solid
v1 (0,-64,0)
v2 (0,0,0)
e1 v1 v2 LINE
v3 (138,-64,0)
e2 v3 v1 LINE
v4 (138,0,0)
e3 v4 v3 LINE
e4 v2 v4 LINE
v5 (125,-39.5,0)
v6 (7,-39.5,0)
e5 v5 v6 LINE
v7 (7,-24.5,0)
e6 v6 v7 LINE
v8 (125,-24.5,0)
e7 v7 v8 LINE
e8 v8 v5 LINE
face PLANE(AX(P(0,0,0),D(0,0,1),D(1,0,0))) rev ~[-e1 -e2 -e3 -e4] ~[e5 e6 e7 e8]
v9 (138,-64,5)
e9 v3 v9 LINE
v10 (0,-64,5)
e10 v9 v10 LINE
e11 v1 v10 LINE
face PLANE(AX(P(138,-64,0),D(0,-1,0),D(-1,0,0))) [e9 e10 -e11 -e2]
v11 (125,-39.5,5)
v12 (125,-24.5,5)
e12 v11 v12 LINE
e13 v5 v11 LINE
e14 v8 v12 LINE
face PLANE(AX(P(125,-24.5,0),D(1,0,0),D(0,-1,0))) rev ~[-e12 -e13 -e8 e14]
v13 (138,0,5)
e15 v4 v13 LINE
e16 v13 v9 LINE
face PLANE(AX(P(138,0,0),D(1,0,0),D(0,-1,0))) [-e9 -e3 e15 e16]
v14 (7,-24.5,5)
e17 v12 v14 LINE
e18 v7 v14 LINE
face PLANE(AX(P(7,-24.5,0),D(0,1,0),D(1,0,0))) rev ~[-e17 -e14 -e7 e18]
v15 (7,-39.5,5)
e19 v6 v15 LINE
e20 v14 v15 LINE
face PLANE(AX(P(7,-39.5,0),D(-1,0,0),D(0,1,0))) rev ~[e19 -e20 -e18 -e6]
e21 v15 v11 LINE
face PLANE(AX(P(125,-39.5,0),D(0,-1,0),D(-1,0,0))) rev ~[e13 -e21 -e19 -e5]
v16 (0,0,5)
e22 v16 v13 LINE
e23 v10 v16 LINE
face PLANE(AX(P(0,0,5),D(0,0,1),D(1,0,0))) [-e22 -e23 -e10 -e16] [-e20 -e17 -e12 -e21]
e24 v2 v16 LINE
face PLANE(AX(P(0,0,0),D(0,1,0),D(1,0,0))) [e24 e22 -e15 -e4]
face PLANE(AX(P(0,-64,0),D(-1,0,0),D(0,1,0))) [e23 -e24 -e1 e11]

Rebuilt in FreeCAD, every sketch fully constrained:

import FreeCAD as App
import Part
import Sketcher
from FreeCAD import Vector

doc = App.newDocument("Part")
params = doc.addObject("Spreadsheet::Sheet", "Params")
for row, (alias, value) in enumerate([
    ("sketch1_width", "138 mm"),
    ("sketch1_height", "64 mm"),
    ("pad1_length", "5 mm"),
    ("sketch2_width", "118 mm"),
    ("sketch2_height", "15 mm"),
    ("pocket1_length", "100 mm"),
], start=1):
    params.set(f"A{row}", alias)
    params.set(f"B{row}", "=" + value)
    params.setAlias(f"B{row}", alias)

body = doc.addObject("PartDesign::Body", "Body")

# Sketch on XY plane
sketch1 = body.newObject("Sketcher::SketchObject", "Sketch")
sketch1.AttachmentSupport = (doc.getObject("XY_Plane"), [""])
sketch1.MapMode = "FlatFace"
sketch1.addGeometry([
    Part.LineSegment(Vector(138, 0, 0), Vector(0, 0, 0)),
    Part.LineSegment(Vector(0, 0, 0), Vector(0, -64, 0)),
    Part.LineSegment(Vector(0, -64, 0), Vector(138, -64, 0)),
    Part.LineSegment(Vector(138, -64, 0), Vector(138, 0, 0)),
], False)
sketch1.addConstraint([
    Sketcher.Constraint("Coincident", 0, 2, 1, 1),
    Sketcher.Constraint("Coincident", 1, 2, 2, 1),
    Sketcher.Constraint("Coincident", 2, 2, 3, 1),
    Sketcher.Constraint("Coincident", 3, 2, 0, 1),
    Sketcher.Constraint("Horizontal", 0),
    Sketcher.Constraint("Vertical", 1),
    Sketcher.Constraint("Horizontal", 2),
    Sketcher.Constraint("Vertical", 3),
    Sketcher.Constraint("Coincident", 0, 2, -1, 1),
    Sketcher.Constraint("DistanceX", 0, 2, 0, 1, 138.0),
    Sketcher.Constraint("DistanceY", 1, 2, 1, 1, 64.0),
])
sketch1.setExpression("Constraints[9]", "Params.sketch1_width")
sketch1.setExpression("Constraints[10]", "Params.sketch1_height")
pad1 = body.newObject("PartDesign::Pad", "Pad")
pad1.Profile = sketch1
pad1.setExpression("Length", "Params.pad1_length")

# Sketch on XY plane
sketch2 = body.newObject("Sketcher::SketchObject", "Sketch001")
sketch2.AttachmentSupport = (doc.getObject("XY_Plane"), [""])
sketch2.MapMode = "FlatFace"
sketch2.addGeometry([
    Part.LineSegment(Vector(125, -24, 0), Vector(7, -24, 0)),
    Part.LineSegment(Vector(7, -24, 0), Vector(7, -40, 0)),
    Part.LineSegment(Vector(7, -40, 0), Vector(125, -40, 0)),
    Part.LineSegment(Vector(125, -40, 0), Vector(125, -24, 0)),
], False)
sketch2.addConstraint([
    Sketcher.Constraint("Coincident", 0, 2, 1, 1),
    Sketcher.Constraint("Coincident", 1, 2, 2, 1),
    Sketcher.Constraint("Coincident", 2, 2, 3, 1),
    Sketcher.Constraint("Coincident", 3, 2, 0, 1),
    Sketcher.Constraint("Horizontal", 0),
    Sketcher.Constraint("Vertical", 1),
    Sketcher.Constraint("Horizontal", 2),
    Sketcher.Constraint("Vertical", 3),
    Sketcher.Constraint("DistanceX", 0, 2, 0, 1, 118.0),
    Sketcher.Constraint("DistanceY", 1, 2, 1, 1, 15.0),
    Sketcher.Constraint("DistanceX", -1, 1, 0, 2, 7.0),
    Sketcher.Constraint("DistanceY", 0, 2, -1, 1, 24.5),
])
sketch2.setExpression("Constraints[8]", "Params.sketch2_width")
sketch2.setExpression("Constraints[9]", "Params.sketch2_height")
pocket1 = body.newObject("PartDesign::Pocket", "Pocket")
pocket1.Profile = sketch2
pocket1.setExpression("Length", "Params.pocket1_length")
pocket1.Reversed = True

doc.recompute()
